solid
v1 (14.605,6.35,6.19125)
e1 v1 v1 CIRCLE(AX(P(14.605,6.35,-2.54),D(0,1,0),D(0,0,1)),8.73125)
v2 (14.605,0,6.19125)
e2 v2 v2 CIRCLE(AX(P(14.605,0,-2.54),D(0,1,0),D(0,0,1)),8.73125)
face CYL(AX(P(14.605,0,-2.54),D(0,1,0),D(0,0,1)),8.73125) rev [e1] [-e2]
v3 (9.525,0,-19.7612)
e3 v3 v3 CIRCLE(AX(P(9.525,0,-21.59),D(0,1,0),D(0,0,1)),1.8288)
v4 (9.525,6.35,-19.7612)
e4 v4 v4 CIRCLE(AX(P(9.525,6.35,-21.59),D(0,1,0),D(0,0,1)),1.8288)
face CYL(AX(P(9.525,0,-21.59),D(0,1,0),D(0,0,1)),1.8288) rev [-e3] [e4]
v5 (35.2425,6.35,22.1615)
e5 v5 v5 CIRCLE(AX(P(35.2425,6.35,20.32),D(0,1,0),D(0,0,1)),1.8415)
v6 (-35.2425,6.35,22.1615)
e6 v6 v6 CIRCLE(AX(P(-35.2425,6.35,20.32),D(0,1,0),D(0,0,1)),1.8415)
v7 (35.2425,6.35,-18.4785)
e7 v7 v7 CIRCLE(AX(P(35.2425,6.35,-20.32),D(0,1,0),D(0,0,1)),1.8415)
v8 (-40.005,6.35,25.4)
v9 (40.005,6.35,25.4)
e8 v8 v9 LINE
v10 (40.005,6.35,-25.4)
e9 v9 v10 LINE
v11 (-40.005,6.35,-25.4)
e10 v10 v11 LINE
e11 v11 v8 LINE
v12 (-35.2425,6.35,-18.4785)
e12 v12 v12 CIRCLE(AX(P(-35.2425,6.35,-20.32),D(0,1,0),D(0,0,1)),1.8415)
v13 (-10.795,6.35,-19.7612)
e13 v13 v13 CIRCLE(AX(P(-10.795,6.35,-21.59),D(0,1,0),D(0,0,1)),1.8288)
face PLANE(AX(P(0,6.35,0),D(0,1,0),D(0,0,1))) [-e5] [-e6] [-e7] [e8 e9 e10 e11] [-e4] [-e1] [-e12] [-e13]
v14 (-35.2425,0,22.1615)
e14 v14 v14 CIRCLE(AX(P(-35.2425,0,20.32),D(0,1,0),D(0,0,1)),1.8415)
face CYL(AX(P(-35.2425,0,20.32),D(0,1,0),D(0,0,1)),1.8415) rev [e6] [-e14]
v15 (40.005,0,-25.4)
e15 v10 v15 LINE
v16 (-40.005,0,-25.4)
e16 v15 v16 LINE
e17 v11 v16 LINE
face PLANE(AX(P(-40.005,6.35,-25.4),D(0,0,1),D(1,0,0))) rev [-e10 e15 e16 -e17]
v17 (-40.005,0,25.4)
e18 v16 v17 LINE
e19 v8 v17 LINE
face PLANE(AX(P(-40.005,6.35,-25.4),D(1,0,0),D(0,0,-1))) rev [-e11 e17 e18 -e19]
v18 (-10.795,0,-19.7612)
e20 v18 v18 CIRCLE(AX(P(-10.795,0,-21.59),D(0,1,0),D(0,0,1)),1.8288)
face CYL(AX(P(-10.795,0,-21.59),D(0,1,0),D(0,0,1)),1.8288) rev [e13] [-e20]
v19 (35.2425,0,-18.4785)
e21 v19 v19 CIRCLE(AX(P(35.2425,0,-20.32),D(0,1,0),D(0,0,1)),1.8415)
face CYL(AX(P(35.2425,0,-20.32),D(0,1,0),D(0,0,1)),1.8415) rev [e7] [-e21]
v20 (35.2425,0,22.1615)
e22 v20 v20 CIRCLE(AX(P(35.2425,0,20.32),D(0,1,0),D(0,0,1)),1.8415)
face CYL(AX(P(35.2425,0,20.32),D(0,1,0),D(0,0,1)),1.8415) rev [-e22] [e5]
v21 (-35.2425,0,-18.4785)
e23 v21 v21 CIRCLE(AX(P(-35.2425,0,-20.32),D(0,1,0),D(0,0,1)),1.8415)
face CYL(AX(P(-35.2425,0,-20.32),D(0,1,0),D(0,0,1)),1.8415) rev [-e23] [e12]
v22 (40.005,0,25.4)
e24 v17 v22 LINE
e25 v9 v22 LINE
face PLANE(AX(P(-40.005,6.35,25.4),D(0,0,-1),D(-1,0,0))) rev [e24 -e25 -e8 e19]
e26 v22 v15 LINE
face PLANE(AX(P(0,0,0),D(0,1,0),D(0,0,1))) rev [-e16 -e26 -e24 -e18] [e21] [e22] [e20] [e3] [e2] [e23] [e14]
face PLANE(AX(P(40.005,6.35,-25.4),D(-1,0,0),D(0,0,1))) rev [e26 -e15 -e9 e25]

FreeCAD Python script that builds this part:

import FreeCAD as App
import Part
import Sketcher

V = App.Vector
Q = App.Units.Quantity

doc = App.newDocument("Part")
body = doc.addObject("PartDesign::Body", "Body")

sketch1 = body.newObject("Sketcher::SketchObject", "Sketch")
sketch1.AttachmentSupport = (doc.getObject("XZ_Plane"), [""])
sketch1.MapMode = "FlatFace"
sketch1.addGeometry(Part.LineSegment(V(-40, -25, 0), V(-40, 25, 0)), False)
sketch1.addGeometry(Part.LineSegment(V(-40, 25, 0), V(40, 25, 0)), False)
sketch1.addGeometry(Part.LineSegment(V(40, 25, 0), V(40, -25, 0)), False)
sketch1.addGeometry(Part.LineSegment(V(40, -25, 0), V(-40, -25, 0)), False)
sketch1.addConstraint(Sketcher.Constraint("Coincident", 0, 2, 1, 1))
sketch1.addConstraint(Sketcher.Constraint("Coincident", 1, 2, 2, 1))
sketch1.addConstraint(Sketcher.Constraint("Coincident", 2, 2, 3, 1))
sketch1.addConstraint(Sketcher.Constraint("Coincident", 3, 2, 0, 1))
sketch1.addConstraint(Sketcher.Constraint("Vertical", 0))
sketch1.addConstraint(Sketcher.Constraint("Horizontal", 1))
sketch1.addConstraint(Sketcher.Constraint("Vertical", 2))
sketch1.addConstraint(Sketcher.Constraint("Horizontal", 3))
sketch1.addConstraint(Sketcher.Constraint("Symmetric", 0, 2, 2, 2, -1, 1))
sketch1.addConstraint(Sketcher.Constraint("DistanceY", 0, 1, 0, 2, Q("2 in")))
sketch1.addConstraint(Sketcher.Constraint("DistanceX", 1, 1, 1, 2, Q("3.15 in")))
pad1 = body.newObject("PartDesign::Pad", "Pad")
pad1.Profile = sketch1
pad1.Length = Q("0.25 in")
pad1.Reversed = True

sketch2 = body.newObject("Sketcher::SketchObject", "Sketch001")
sketch2.AttachmentSupport = (doc.getObject("XZ_Plane"), [""])
sketch2.MapMode = "FlatFace"
sketch2.AttachmentOffset = App.Placement(V(0, 0, -0.25 * 25.4), App.Rotation())
sketch2.addGeometry(Part.Circle(V(-35.2, -20.3, 0), V(0, 0, 1), 1.8), False)
sketch2.addGeometry(Part.Circle(V(-35.2, 20.3, 0), V(0, 0, 1), 1.8), False)
sketch2.addGeometry(Part.Circle(V(35.2, 20.3, 0), V(0, 0, 1), 1.8), False)
sketch2.addGeometry(Part.Circle(V(35.2, -20.3, 0), V(0, 0, 1), 1.8), False)
sketch2.addConstraint(Sketcher.Constraint("Equal", 0, 1))
sketch2.addConstraint(Sketcher.Constraint("Equal", 1, 2))
sketch2.addConstraint(Sketcher.Constraint("Equal", 2, 3))
sketch2.addConstraint(Sketcher.Constraint("Symmetric", 0, 3, 2, 3, -1, 1))
sketch2.addConstraint(Sketcher.Constraint("Symmetric", 1, 3, 3, 3, -1, 1))
sketch2.addConstraint(Sketcher.Constraint("Symmetric", 1, 3, 2, 3, -2))
sketch2.addConstraint(Sketcher.Constraint("Diameter", 0, Q("0.145 in")))
sketch2.addConstraint(Sketcher.Constraint("DistanceY", 0, 3, -1, 1, Q("0.8 in")))
sketch2.addConstraint(Sketcher.Constraint("DistanceX", 1, 3, 2, 3, Q("2.775 in")))
pocket1 = body.newObject("PartDesign::Pocket", "Pocket")
pocket1.Profile = sketch2
pocket1.Type = "ThroughAll"
pocket1.Reversed = True

sketch3 = body.newObject("Sketcher::SketchObject", "Sketch002")
sketch3.AttachmentSupport = (doc.getObject("XZ_Plane"), [""])
sketch3.MapMode = "FlatFace"
sketch3.AttachmentOffset = App.Placement(V(0, 0, -0.25 * 25.4), App.Rotation())
sketch3.addGeometry(Part.Circle(V(14.6, -2.5, 0), V(0, 0, 1), 8.7), False)
sketch3.addGeometry(Part.Circle(V(-10.8, -21.6, 0), V(0, 0, 1), 1.8), False)
sketch3.addGeometry(Part.Circle(V(9.5, -21.6, 0), V(0, 0, 1), 1.8), False)
sketch3.addConstraint(Sketcher.Constraint("Equal", 1, 2))
sketch3.addConstraint(Sketcher.Constraint("Horizontal", 1, 3, 2, 3))
sketch3.addConstraint(Sketcher.Constraint("Diameter", 0, Q("0.6875 in")))
sketch3.addConstraint(Sketcher.Constraint("Diameter", 1, Q("0.144 in")))
sketch3.addConstraint(Sketcher.Constraint("DistanceX", 1, 3, 0, 3, Q("1 in")))
sketch3.addConstraint(Sketcher.Constraint("DistanceY", 0, 3, -1, 1, Q("0.1 in")))
sketch3.addConstraint(Sketcher.Constraint("DistanceX", 2, 3, 0, 3, Q("0.2 in")))
sketch3.addConstraint(Sketcher.Constraint("DistanceY", 1, 3, -1, 1, Q("0.85 in")))
sketch3.addConstraint(Sketcher.Constraint("DistanceX", -1, 1, 0, 3, Q("0.575 in")))
pocket2 = body.newObject("PartDesign::Pocket", "Pocket001")
pocket2.Profile = sketch3
pocket2.Type = "ThroughAll"
pocket2.Reversed = True

doc.recompute()
